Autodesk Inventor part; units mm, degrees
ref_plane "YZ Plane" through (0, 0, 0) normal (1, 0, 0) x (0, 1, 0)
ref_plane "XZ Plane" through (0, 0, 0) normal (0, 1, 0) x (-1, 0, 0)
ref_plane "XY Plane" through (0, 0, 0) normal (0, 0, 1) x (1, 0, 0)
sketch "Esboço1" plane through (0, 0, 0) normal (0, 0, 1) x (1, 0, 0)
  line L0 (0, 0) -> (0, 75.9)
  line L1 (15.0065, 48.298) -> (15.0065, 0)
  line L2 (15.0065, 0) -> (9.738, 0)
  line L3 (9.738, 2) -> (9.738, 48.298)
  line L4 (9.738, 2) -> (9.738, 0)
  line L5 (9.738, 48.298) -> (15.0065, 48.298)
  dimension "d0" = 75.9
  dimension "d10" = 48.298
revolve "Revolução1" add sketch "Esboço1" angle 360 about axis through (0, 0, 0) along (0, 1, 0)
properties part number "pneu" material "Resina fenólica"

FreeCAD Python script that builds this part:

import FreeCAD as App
import Part
import Sketcher


def add_polygon(sketch, points):
    """Adds a closed chain of lines whose ends are joined by coincident constraints."""
    first, n = sketch.GeometryCount, len(points)
    for a, b in zip(points, points[1:] + points[:1]):
        sketch.addGeometry(Part.LineSegment(App.Vector(*a, 0), App.Vector(*b, 0)), False)
    for i in range(n):
        sketch.addConstraint(Sketcher.Constraint("Coincident", first + i, 2, first + (i + 1) % n, 1))

doc = App.newDocument("Part")
body = doc.addObject("PartDesign::Body", "Body")

sketch1 = body.newObject("Sketcher::SketchObject", "Sketch")
sketch1.AttachmentSupport = (doc.getObject("XY_Plane"), [""])
sketch1.MapMode = "FlatFace"
add_polygon(sketch1, [(15.0065, 0), (15.0065, 48.298), (9.738, 48.298), (9.738, 0)])
sketch1.addConstraint(Sketcher.Constraint("Vertical", 0))
sketch1.addConstraint(Sketcher.Constraint("Horizontal", 1))
sketch1.addConstraint(Sketcher.Constraint("Vertical", 2))
sketch1.addConstraint(Sketcher.Constraint("Horizontal", 3))
sketch1.addConstraint(Sketcher.Constraint("PointOnObject", 2, 2, -1))
sketch1.addConstraint(Sketcher.Constraint("DistanceY", 0, 1, 0, 2, 48.298))
sketch1.addConstraint(Sketcher.Constraint("DistanceX", 1, 2, 1, 1, 5.2685))
sketch1.addConstraint(Sketcher.Constraint("DistanceX", -1, 1, 1, 2, 9.738))
revolution = body.newObject("PartDesign::Revolution", "Revolution")
revolution.Profile = sketch1
revolution.ReferenceAxis = (sketch1, ["V_Axis"])
revolution.Angle = 360

doc.recompute()
